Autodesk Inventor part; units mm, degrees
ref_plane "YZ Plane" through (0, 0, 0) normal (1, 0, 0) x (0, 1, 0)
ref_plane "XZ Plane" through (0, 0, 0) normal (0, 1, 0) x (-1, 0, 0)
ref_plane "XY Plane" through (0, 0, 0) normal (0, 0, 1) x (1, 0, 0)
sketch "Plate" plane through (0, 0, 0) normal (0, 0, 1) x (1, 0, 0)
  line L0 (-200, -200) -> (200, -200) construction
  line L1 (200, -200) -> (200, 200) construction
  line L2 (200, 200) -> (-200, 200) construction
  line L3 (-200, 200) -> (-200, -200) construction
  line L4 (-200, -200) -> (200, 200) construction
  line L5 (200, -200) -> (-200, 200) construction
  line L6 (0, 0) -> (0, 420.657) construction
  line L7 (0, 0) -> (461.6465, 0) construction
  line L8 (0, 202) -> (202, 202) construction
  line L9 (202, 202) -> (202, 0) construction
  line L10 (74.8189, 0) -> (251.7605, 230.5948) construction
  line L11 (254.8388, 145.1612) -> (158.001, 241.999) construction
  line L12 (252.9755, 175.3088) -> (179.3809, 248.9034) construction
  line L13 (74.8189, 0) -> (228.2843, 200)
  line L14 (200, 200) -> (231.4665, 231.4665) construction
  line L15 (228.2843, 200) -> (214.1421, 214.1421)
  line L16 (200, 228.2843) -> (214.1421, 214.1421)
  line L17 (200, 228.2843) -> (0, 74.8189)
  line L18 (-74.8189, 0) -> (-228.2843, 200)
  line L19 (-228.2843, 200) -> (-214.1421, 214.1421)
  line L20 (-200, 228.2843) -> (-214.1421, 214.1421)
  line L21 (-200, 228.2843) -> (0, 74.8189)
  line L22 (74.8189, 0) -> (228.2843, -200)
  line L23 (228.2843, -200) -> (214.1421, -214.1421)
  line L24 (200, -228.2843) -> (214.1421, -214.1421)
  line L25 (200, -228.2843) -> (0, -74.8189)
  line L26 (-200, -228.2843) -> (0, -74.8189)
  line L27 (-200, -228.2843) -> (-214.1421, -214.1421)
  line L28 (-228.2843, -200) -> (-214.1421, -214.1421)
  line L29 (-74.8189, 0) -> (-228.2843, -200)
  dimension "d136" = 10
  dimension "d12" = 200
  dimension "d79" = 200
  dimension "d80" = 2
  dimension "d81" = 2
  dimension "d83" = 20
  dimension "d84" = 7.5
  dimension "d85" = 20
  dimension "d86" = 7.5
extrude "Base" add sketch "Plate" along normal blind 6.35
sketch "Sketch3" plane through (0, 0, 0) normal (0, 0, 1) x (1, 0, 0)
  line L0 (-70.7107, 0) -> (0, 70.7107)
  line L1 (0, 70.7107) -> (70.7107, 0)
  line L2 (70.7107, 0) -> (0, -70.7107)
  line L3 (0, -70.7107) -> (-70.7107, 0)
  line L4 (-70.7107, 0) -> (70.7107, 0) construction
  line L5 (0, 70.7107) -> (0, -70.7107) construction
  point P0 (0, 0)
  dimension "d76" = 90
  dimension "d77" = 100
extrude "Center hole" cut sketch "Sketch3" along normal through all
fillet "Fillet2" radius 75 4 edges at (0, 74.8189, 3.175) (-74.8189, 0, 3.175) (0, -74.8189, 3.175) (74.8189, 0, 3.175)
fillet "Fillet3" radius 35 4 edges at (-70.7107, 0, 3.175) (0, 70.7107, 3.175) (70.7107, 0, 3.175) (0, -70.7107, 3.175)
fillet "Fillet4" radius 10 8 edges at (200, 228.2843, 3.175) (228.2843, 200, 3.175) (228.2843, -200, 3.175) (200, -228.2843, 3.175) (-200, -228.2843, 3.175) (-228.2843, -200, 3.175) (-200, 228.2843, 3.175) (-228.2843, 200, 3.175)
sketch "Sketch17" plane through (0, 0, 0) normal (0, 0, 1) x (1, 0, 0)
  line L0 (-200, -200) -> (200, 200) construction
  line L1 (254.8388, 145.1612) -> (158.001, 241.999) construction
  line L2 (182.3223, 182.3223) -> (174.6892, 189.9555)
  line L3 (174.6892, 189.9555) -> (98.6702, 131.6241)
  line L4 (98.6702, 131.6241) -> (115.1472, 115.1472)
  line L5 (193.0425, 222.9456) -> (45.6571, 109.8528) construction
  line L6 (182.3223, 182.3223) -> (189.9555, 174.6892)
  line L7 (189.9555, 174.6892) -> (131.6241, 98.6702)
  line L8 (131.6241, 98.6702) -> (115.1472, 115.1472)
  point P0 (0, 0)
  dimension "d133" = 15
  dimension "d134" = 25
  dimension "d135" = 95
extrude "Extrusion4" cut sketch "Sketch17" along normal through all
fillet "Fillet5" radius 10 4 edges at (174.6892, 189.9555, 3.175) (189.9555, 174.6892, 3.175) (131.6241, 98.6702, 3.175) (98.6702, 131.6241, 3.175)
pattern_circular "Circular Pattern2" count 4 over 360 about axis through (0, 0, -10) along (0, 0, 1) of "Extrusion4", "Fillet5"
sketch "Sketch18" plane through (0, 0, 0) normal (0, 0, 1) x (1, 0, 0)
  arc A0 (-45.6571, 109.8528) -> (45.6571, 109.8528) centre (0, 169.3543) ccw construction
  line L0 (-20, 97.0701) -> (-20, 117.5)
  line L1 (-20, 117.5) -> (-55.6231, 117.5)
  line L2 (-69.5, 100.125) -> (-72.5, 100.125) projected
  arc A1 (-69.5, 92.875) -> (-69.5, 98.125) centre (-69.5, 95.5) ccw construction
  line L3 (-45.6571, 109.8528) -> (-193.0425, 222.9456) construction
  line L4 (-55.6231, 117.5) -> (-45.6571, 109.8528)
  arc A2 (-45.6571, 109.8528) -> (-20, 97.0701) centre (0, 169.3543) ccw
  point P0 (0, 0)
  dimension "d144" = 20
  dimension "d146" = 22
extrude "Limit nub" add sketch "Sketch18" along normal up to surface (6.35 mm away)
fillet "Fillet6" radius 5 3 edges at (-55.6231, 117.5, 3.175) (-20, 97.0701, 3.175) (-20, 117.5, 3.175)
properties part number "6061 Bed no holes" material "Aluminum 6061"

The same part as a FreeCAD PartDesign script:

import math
import FreeCAD as App
import Part
import Sketcher

V = App.Vector
Q = App.Units.Quantity


def edges_at(feature, points):
    """Names of the edges that pass closest to the given points."""
    edges = feature.Shape.Edges
    near = lambda p: min(range(len(edges)), key=lambda i: edges[i].distToShape(Part.Vertex(*p))[0])
    return sorted({f"Edge{near(p) + 1}" for p in points})

doc = App.newDocument("Part")
params = doc.addObject("Spreadsheet::Sheet", "Params")
for row, (alias, value) in enumerate([
    ("sketch1_length", "20 mm"),
    ("pad1_length", "6.35 mm"),
    ("sketch2_length", "100 mm"),
    ("fillet_radius", "75 mm"),
    ("fillet2_radius", "35 mm"),
    ("fillet3_radius", "10 mm"),
    ("fillet4_radius", "10 mm"),
    ("sketch4_height", "20.43 mm"),
    ("pad2_length", "6.35 mm"),
    ("fillet5_radius", "5 mm"),
], start=1):
    params.set(f"A{row}", alias)
    params.set(f"B{row}", "=" + value)
    params.setAlias(f"B{row}", alias)

body = doc.addObject("PartDesign::Body", "Body")

# Sketch on XY plane
sketch1 = body.newObject("Sketcher::SketchObject", "Sketch")
sketch1.AttachmentSupport = (doc.getObject("XY_Plane"), [""])
sketch1.MapMode = "FlatFace"
sketch1.addGeometry(Part.LineSegment(V(228, -200, 0), V(75, 0, 0)), False)
sketch1.addGeometry(Part.LineSegment(V(75, 0, 0), V(228, 200, 0)), False)
sketch1.addGeometry(Part.LineSegment(V(228, 200, 0), V(214, 214, 0)), False)
sketch1.addGeometry(Part.LineSegment(V(214, 214, 0), V(200, 228, 0)), False)
sketch1.addGeometry(Part.LineSegment(V(200, 228, 0), V(0, 75, 0)), False)
sketch1.addGeometry(Part.LineSegment(V(0, 75, 0), V(-200, 228, 0)), False)
sketch1.addGeometry(Part.LineSegment(V(-200, 228, 0), V(-214, 214, 0)), False)
sketch1.addGeometry(Part.LineSegment(V(-214, 214, 0), V(-228, 200, 0)), False)
sketch1.addGeometry(Part.LineSegment(V(-228, 200, 0), V(-75, 0, 0)), False)
sketch1.addGeometry(Part.LineSegment(V(-75, 0, 0), V(-228, -200, 0)), False)
sketch1.addGeometry(Part.LineSegment(V(-228, -200, 0), V(-214, -214, 0)), False)
sketch1.addGeometry(Part.LineSegment(V(-214, -214, 0), V(-200, -228, 0)), False)
sketch1.addGeometry(Part.LineSegment(V(-200, -228, 0), V(0, -75, 0)), False)
sketch1.addGeometry(Part.LineSegment(V(0, -75, 0), V(200, -228, 0)), False)
sketch1.addGeometry(Part.LineSegment(V(200, -228, 0), V(214, -214, 0)), False)
sketch1.addGeometry(Part.LineSegment(V(214, -214, 0), V(228, -200, 0)), False)
sketch1.addConstraint(Sketcher.Constraint("Coincident", 0, 2, 1, 1))
sketch1.addConstraint(Sketcher.Constraint("Coincident", 1, 2, 2, 1))
sketch1.addConstraint(Sketcher.Constraint("Coincident", 2, 2, 3, 1))
sketch1.addConstraint(Sketcher.Constraint("Coincident", 3, 2, 4, 1))
sketch1.addConstraint(Sketcher.Constraint("Coincident", 4, 2, 5, 1))
sketch1.addConstraint(Sketcher.Constraint("Coincident", 5, 2, 6, 1))
sketch1.addConstraint(Sketcher.Constraint("Coincident", 6, 2, 7, 1))
sketch1.addConstraint(Sketcher.Constraint("Coincident", 7, 2, 8, 1))
sketch1.addConstraint(Sketcher.Constraint("Coincident", 8, 2, 9, 1))
sketch1.addConstraint(Sketcher.Constraint("Coincident", 9, 2, 10, 1))
sketch1.addConstraint(Sketcher.Constraint("Coincident", 10, 2, 11, 1))
sketch1.addConstraint(Sketcher.Constraint("Coincident", 11, 2, 12, 1))
sketch1.addConstraint(Sketcher.Constraint("Coincident", 12, 2, 13, 1))
sketch1.addConstraint(Sketcher.Constraint("Coincident", 13, 2, 14, 1))
sketch1.addConstraint(Sketcher.Constraint("Coincident", 14, 2, 15, 1))
sketch1.addConstraint(Sketcher.Constraint("Coincident", 15, 2, 0, 1))
sketch1.addConstraint(Sketcher.Constraint("Symmetric", 0, 2, 8, 2, -1, 1))
sketch1.addConstraint(Sketcher.Constraint("Symmetric", 1, 2, 9, 2, -1, 1))
sketch1.addConstraint(Sketcher.Constraint("Symmetric", 2, 2, 10, 2, -1, 1))
sketch1.addConstraint(Sketcher.Constraint("Symmetric", 3, 2, 11, 2, -1, 1))
sketch1.addConstraint(Sketcher.Constraint("Symmetric", 4, 2, 12, 2, -1, 1))
sketch1.addConstraint(Sketcher.Constraint("Symmetric", 5, 2, 13, 2, -1, 1))
sketch1.addConstraint(Sketcher.Constraint("Symmetric", 6, 2, 14, 2, -1, 1))
sketch1.addConstraint(Sketcher.Constraint("Symmetric", 7, 2, 15, 2, -1, 1))
sketch1.addConstraint(Sketcher.Constraint("Symmetric", 3, 2, 5, 2, -2))
sketch1.addConstraint(Sketcher.Constraint("Symmetric", 2, 2, 6, 2, -2))
sketch1.addConstraint(Sketcher.Constraint("Symmetric", 1, 2, 7, 2, -2))
sketch1.addConstraint(Sketcher.Constraint("PointOnObject", 0, 2, -1))
sketch1.addConstraint(Sketcher.Constraint("PointOnObject", 4, 2, -2))
sketch1.addConstraint(Sketcher.Constraint("Parallel", 2, 3))
sketch1.addConstraint(Sketcher.Constraint("Perpendicular", 0, 4))
sketch1.addConstraint(Sketcher.Constraint("Perpendicular", 3, 6))
sketch1.addConstraint(Sketcher.Constraint("Equal", 2, 3))
sketch1.addConstraint(Sketcher.Constraint("Equal", 1, 4))
sketch1.addConstraint(Sketcher.Constraint("Distance", 2, 20.0))
sketch1.addConstraint(Sketcher.Constraint("DistanceY", -1, 1, 1, 2, 200.0))
sketch1.addConstraint(Sketcher.Constraint("Angle", 0, Q("127.5 deg")))
sketch1.setExpression("Constraints[34]", "Params.sketch1_length")
pad1 = body.newObject("PartDesign::Pad", "Pad")
pad1.Profile = sketch1
pad1.setExpression("Length", "Params.pad1_length")

# Sketch on XY plane
sketch2 = body.newObject("Sketcher::SketchObject", "Sketch001")
sketch2.AttachmentSupport = (doc.getObject("XY_Plane"), [""])
sketch2.MapMode = "FlatFace"
sketch2.addGeometry(Part.LineSegment(V(0, 71, 0), V(-71, 0, 0)), False)
sketch2.addGeometry(Part.LineSegment(V(-71, 0, 0), V(0, -71, 0)), False)
sketch2.addGeometry(Part.LineSegment(V(0, -71, 0), V(71, 0, 0)), False)
sketch2.addGeometry(Part.LineSegment(V(71, 0, 0), V(0, 71, 0)), False)
sketch2.addConstraint(Sketcher.Constraint("Coincident", 0, 2, 1, 1))
sketch2.addConstraint(Sketcher.Constraint("Coincident", 1, 2, 2, 1))
sketch2.addConstraint(Sketcher.Constraint("Coincident", 2, 2, 3, 1))
sketch2.addConstraint(Sketcher.Constraint("Coincident", 3, 2, 0, 1))
sketch2.addConstraint(Sketcher.Constraint("Symmetric", 0, 2, 2, 2, -1, 1))
sketch2.addConstraint(Sketcher.Constraint("Symmetric", 1, 2, 3, 2, -1, 1))
sketch2.addConstraint(Sketcher.Constraint("PointOnObject", 0, 2, -1))
sketch2.addConstraint(Sketcher.Constraint("PointOnObject", 1, 2, -2))
sketch2.addConstraint(Sketcher.Constraint("Perpendicular", 0, 1))
sketch2.addConstraint(Sketcher.Constraint("Distance", 0, 100.0))
sketch2.setExpression("Constraints[9]", "Params.sketch2_length")
pocket1 = body.newObject("PartDesign::Pocket", "Pocket")
pocket1.Profile = sketch2
pocket1.Type = "ThroughAll"
pocket1.Reversed = True
doc.recompute()

fillet = body.newObject("PartDesign::Fillet", "Fillet")
fillet.Base = (pocket1, edges_at(pocket1, [
    (0, 74.819, 3.175),
    (-74.819, 0, 3.175),
    (0, -74.819, 3.175),
    (74.819, 0, 3.175),
]))
fillet.setExpression("Radius", "Params.fillet_radius")
doc.recompute()

fillet2 = body.newObject("PartDesign::Fillet", "Fillet001")
fillet2.Base = (fillet, edges_at(fillet, [
    (-70.711, 0, 3.175),
    (0, 70.711, 3.175),
    (70.711, 0, 3.175),
    (0, -70.711, 3.175),
]))
fillet2.setExpression("Radius", "Params.fillet2_radius")
doc.recompute()

fillet3 = body.newObject("PartDesign::Fillet", "Fillet002")
fillet3.Base = (fillet2, edges_at(fillet2, [
    (200, 228.284, 3.175),
    (228.284, 200, 3.175),
    (228.284, -200, 3.175),
    (200, -228.284, 3.175),
    (-200, -228.284, 3.175),
    (-228.284, -200, 3.175),
    (-200, 228.284, 3.175),
    (-228.284, 200, 3.175),
]))
fillet3.setExpression("Radius", "Params.fillet3_radius")

# Sketch on XY plane
sketch3 = body.newObject("Sketcher::SketchObject", "Sketch002")
sketch3.AttachmentSupport = (doc.getObject("XY_Plane"), [""])
sketch3.MapMode = "FlatFace"
sketch3.addGeometry(Part.LineSegment(V(189.9555, 174.6892, 0), V(182.3223, 182.3223, 0)), False)
sketch3.addGeometry(Part.LineSegment(V(182.3223, 182.3223, 0), V(174.6892, 189.9555, 0)), False)
sketch3.addGeometry(Part.LineSegment(V(174.6892, 189.9555, 0), V(98.6702, 131.6241, 0)), False)
sketch3.addGeometry(Part.LineSegment(V(98.6702, 131.6241, 0), V(115.1472, 115.1472, 0)), False)
sketch3.addGeometry(Part.LineSegment(V(115.1472, 115.1472, 0), V(131.6241, 98.6702, 0)), False)
sketch3.addGeometry(Part.LineSegment(V(131.6241, 98.6702, 0), V(189.9555, 174.6892, 0)), False)
sketch3.addConstraint(Sketcher.Constraint("Coincident", 0, 2, 1, 1))
sketch3.addConstraint(Sketcher.Constraint("Coincident", 1, 2, 2, 1))
sketch3.addConstraint(Sketcher.Constraint("Coincident", 2, 2, 3, 1))
sketch3.addConstraint(Sketcher.Constraint("Coincident", 3, 2, 4, 1))
sketch3.addConstraint(Sketcher.Constraint("Coincident", 4, 2, 5, 1))
sketch3.addConstraint(Sketcher.Constraint("Coincident", 5, 2, 0, 1))
sketch3.addConstraint(Sketcher.Constraint("Distance", 0, 10.795))
sketch3.addConstraint(Sketcher.Constraint("Distance", 1, 10.795))
sketch3.addConstraint(Sketcher.Constraint("Distance", 3, 23.302))
sketch3.addConstraint(Sketcher.Constraint("Distance", 4, 23.302))
sketch3.addConstraint(Sketcher.Constraint("DistanceY", -1, 1, 2, 2, 131.624))
sketch3.addConstraint(Sketcher.Constraint("DistanceX", -1, 1, 4, 2, 131.624))
sketch3.addConstraint(Sketcher.Constraint("DistanceX", 1, 2, 0, 2, 7.633))
sketch3.addConstraint(Sketcher.Constraint("DistanceX", 2, 2, 1, 2, 76.019))
sketch3.addConstraint(Sketcher.Constraint("DistanceX", 2, 2, 3, 2, 16.477))
sketch3.addConstraint(Sketcher.Constraint("DistanceY", 3, 2, 0, 2, 67.175))
sketch3.addConstraint(Sketcher.Constraint("DistanceX", 3, 2, 4, 2, 16.477))
sketch3.addConstraint(Sketcher.Constraint("DistanceY", 5, 2, 0, 2, 7.633))
pocket2 = body.newObject("PartDesign::Pocket", "Pocket001")
pocket2.Profile = sketch3
pocket2.Type = "ThroughAll"
pocket2.Reversed = True
doc.recompute()

fillet4 = body.newObject("PartDesign::Fillet", "Fillet003")
fillet4.Base = (pocket2, edges_at(pocket2, [
    (174.689, 189.956, 3.175),
    (189.956, 174.689, 3.175),
    (131.624, 98.67, 3.175),
    (98.67, 131.624, 3.175),
]))
fillet4.setExpression("Radius", "Params.fillet4_radius")
doc.recompute()

polarpattern = body.newObject("PartDesign::PolarPattern", "PolarPattern")
polarpattern.Originals = [pocket2, fillet4]
polarpattern.Axis = (doc.getObject("Z_Axis"), [""])
polarpattern.Angle = 360
polarpattern.Occurrences = 4
body.Tip = polarpattern

# Sketch on XY plane
sketch4 = body.newObject("Sketcher::SketchObject", "Sketch003")
sketch4.AttachmentSupport = (doc.getObject("XY_Plane"), [""])
sketch4.MapMode = "FlatFace"
sketch4.addGeometry(Part.ArcOfCircle(Part.Circle(V(0, 169, 0), V(0, 0, 1), 75), math.radians(-127), math.radians(-105)), False)
sketch4.addGeometry(Part.LineSegment(V(-20, 97, 0), V(-20, 118, 0)), False)
sketch4.addGeometry(Part.LineSegment(V(-20, 118, 0), V(-56, 118, 0)), False)
sketch4.addGeometry(Part.LineSegment(V(-56, 118, 0), V(-46, 110, 0)), False)
sketch4.addConstraint(Sketcher.Constraint("Coincident", 0, 2, 1, 1))
sketch4.addConstraint(Sketcher.Constraint("Coincident", 1, 2, 2, 1))
sketch4.addConstraint(Sketcher.Constraint("Coincident", 2, 2, 3, 1))
sketch4.addConstraint(Sketcher.Constraint("Tangent", 3, 2, 0, 1))
sketch4.addConstraint(Sketcher.Constraint("Vertical", 1))
sketch4.addConstraint(Sketcher.Constraint("Horizontal", 2))
sketch4.addConstraint(Sketcher.Constraint("DistanceX", 0, 2, -1, 1, 20.0))
sketch4.addConstraint(Sketcher.Constraint("Angle", 3, Q("-37.5 deg")))
sketch4.addConstraint(Sketcher.Constraint("DistanceY", 1, 1, 1, 2, 20.43))
sketch4.addConstraint(Sketcher.Constraint("DistanceY", -1, 1, 1, 2, 117.5))
sketch4.addConstraint(Sketcher.Constraint("Radius", 0, 75.0011))
sketch4.addConstraint(Sketcher.Constraint("DistanceX", 2, 2, 2, 1, 35.623))
sketch4.setExpression("Constraints[8]", "Params.sketch4_height")
pad2 = body.newObject("PartDesign::Pad", "Pad001")
pad2.Profile = sketch4
pad2.setExpression("Length", "Params.pad2_length")
doc.recompute()

fillet5 = body.newObject("PartDesign::Fillet", "Fillet004")
fillet5.Base = (pad2, edges_at(pad2, [(-55.623, 117.5, 3.175), (-20, 97.07, 3.175), (-20, 117.5, 3.175)]))
fillet5.setExpression("Radius", "Params.fillet5_radius")

doc.recompute()
